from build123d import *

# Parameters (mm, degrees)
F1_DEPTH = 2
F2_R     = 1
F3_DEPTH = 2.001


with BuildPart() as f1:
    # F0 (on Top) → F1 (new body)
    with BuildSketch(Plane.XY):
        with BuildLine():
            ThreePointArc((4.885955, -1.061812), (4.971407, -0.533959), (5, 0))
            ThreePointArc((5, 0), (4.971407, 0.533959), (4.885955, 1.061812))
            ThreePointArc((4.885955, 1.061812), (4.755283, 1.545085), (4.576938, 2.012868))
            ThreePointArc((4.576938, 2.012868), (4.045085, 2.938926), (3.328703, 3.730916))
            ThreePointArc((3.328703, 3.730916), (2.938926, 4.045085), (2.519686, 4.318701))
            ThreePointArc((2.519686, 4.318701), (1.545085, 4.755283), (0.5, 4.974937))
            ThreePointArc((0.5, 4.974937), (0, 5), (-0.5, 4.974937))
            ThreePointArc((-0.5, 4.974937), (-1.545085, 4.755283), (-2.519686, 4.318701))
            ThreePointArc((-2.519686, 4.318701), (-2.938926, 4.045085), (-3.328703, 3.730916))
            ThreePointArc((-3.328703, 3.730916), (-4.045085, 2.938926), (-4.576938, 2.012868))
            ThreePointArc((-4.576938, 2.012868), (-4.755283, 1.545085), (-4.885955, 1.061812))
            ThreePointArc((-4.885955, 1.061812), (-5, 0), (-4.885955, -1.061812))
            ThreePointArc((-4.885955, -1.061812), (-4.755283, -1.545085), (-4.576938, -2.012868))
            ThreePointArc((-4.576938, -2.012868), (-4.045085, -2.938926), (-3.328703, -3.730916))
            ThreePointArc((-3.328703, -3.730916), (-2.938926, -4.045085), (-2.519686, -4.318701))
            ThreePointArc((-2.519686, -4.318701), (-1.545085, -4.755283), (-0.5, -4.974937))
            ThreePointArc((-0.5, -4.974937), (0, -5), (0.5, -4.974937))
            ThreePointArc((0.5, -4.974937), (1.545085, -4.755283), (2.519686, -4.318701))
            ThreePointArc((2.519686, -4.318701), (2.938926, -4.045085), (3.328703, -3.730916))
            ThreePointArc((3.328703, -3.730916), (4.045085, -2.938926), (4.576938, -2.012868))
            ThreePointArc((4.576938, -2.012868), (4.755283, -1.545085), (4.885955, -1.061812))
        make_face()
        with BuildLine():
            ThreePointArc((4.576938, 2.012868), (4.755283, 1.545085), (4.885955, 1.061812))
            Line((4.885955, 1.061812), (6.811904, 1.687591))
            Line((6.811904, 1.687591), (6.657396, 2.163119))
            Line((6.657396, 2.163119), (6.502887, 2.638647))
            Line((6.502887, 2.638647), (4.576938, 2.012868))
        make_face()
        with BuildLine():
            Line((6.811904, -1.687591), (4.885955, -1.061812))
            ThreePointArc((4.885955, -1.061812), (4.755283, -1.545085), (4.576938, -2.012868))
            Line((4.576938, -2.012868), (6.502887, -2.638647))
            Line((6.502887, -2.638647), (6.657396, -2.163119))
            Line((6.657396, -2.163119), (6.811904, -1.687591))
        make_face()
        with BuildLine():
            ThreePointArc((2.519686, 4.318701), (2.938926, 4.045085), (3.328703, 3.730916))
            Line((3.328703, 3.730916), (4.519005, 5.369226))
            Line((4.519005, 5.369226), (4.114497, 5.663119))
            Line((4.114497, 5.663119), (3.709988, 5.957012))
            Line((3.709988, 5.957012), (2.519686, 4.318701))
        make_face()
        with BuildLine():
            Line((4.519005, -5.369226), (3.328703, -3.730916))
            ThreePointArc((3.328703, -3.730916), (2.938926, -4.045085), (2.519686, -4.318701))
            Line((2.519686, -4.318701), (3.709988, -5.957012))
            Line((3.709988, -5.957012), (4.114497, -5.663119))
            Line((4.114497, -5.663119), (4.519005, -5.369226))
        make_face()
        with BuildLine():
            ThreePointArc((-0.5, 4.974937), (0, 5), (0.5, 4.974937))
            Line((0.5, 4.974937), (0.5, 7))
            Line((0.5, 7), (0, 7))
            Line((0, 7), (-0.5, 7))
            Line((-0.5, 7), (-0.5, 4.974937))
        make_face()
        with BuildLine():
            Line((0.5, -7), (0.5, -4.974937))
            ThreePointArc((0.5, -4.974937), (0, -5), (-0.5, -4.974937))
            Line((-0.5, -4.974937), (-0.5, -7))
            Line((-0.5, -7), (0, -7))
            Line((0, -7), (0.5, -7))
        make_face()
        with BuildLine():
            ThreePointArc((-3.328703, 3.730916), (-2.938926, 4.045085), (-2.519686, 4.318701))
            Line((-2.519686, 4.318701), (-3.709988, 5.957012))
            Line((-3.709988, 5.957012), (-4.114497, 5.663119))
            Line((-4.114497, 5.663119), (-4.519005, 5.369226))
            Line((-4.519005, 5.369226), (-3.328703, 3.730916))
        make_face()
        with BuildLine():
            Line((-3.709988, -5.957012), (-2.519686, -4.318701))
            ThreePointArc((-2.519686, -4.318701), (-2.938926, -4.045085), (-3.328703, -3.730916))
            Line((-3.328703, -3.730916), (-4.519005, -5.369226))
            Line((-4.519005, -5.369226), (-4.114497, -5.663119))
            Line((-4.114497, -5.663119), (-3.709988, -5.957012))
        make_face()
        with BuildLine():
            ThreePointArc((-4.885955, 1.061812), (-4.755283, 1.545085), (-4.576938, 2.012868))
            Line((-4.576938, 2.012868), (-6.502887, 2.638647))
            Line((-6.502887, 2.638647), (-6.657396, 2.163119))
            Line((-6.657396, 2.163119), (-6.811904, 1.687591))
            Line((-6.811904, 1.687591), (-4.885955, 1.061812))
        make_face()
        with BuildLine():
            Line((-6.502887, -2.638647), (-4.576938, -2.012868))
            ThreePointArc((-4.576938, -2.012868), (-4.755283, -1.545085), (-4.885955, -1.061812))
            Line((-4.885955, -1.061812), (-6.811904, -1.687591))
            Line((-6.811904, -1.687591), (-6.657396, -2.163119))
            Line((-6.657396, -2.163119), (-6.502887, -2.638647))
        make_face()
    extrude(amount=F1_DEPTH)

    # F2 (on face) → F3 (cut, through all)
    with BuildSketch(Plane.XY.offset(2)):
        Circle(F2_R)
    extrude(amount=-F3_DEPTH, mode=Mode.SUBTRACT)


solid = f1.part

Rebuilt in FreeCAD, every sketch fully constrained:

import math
import FreeCAD as App
import Part
import Sketcher

V = App.Vector
Q = App.Units.Quantity

doc = App.newDocument("Part")
body = doc.addObject("PartDesign::Body", "Body")

sketch1 = body.newObject("Sketcher::SketchObject", "Sketch")
sketch1.AttachmentSupport = (doc.getObject("XY_Plane"), [""])
sketch1.MapMode = "FlatFace"
sketch1.addGeometry(Part.ArcOfCircle(Part.Circle(V(-0.000013, 0.000001, 0), V(0, 0, 1), 5.000013), math.radians(-12.26081), math.radians(-0.00001)), False)
sketch1.addGeometry(Part.ArcOfCircle(Part.Circle(V(-0.000013, -0.000001, 0), V(0, 0, 1), 5.000013), math.radians(0.00001), math.radians(12.26081)), False)
sketch1.addGeometry(Part.LineSegment(V(4.885955, 1.061812, 0), V(6.811904, 1.687591, 0)), False)
sketch1.addGeometry(Part.LineSegment(V(6.811904, 1.687591, 0), V(6.657396, 2.163119, 0)), False)
sketch1.addGeometry(Part.LineSegment(V(6.657396, 2.163119, 0), V(6.502887, 2.638647, 0)), False)
sketch1.addGeometry(Part.LineSegment(V(6.502887, 2.638647, 0), V(4.576938, 2.012868, 0)), False)
sketch1.addGeometry(Part.ArcOfCircle(Part.Circle(V(0.000001, 0, 0), V(0, 0, 1), 4.999999), math.radians(23.739167), math.radians(48.260836)), False)
sketch1.addGeometry(Part.LineSegment(V(3.328703, 3.730916, 0), V(4.519005, 5.369226, 0)), False)
sketch1.addGeometry(Part.LineSegment(V(4.519005, 5.369226, 0), V(4.114497, 5.663119, 0)), False)
sketch1.addGeometry(Part.LineSegment(V(4.114497, 5.663119, 0), V(3.709988, 5.957012, 0)), False)
sketch1.addGeometry(Part.LineSegment(V(3.709988, 5.957012, 0), V(2.519686, 4.318701, 0)), False)
sketch1.addGeometry(Part.ArcOfCircle(Part.Circle(V(0.000009, 0.00003, 0), V(0, 0, 1), 4.999969), math.radians(59.739089), math.radians(84.260899)), False)
sketch1.addGeometry(Part.LineSegment(V(0.5, 4.974937, 0), V(0.5, 7, 0)), False)
sketch1.addGeometry(Part.LineSegment(V(0.5, 7, 0), V(-0.5, 7, 0)), False)
sketch1.addGeometry(Part.LineSegment(V(-0.5, 7, 0), V(-0.5, 4.974937, 0)), False)
sketch1.addGeometry(Part.ArcOfCircle(Part.Circle(V(-0.000009, 0.00003, 0), V(0, 0, 1), 4.999969), math.radians(95.739101), math.radians(120.260911)), False)
sketch1.addGeometry(Part.LineSegment(V(-2.519686, 4.318701, 0), V(-3.709988, 5.957012, 0)), False)
sketch1.addGeometry(Part.LineSegment(V(-3.709988, 5.957012, 0), V(-4.114497, 5.663119, 0)), False)
sketch1.addGeometry(Part.LineSegment(V(-4.114497, 5.663119, 0), V(-4.519005, 5.369226, 0)), False)
sketch1.addGeometry(Part.LineSegment(V(-4.519005, 5.369226, 0), V(-3.328703, 3.730916, 0)), False)
sketch1.addGeometry(Part.ArcOfCircle(Part.Circle(V(-0.000001, 0, 0), V(0, 0, 1), 4.999999), math.radians(131.739164), math.radians(156.260833)), False)
sketch1.addGeometry(Part.LineSegment(V(-4.576938, 2.012868, 0), V(-6.502887, 2.638647, 0)), False)
sketch1.addGeometry(Part.LineSegment(V(-6.502887, 2.638647, 0), V(-6.657396, 2.163119, 0)), False)
sketch1.addGeometry(Part.LineSegment(V(-6.657396, 2.163119, 0), V(-6.811904, 1.687591, 0)), False)
sketch1.addGeometry(Part.LineSegment(V(-6.811904, 1.687591, 0), V(-4.885955, 1.061812, 0)), False)
sketch1.addGeometry(Part.ArcOfCircle(Part.Circle(V(0.000004, 0, 0), V(0, 0, 1), 5.000004), math.radians(167.73918), math.radians(192.26082)), False)
sketch1.addGeometry(Part.LineSegment(V(-4.885955, -1.061812, 0), V(-6.811904, -1.687591, 0)), False)
sketch1.addGeometry(Part.LineSegment(V(-6.811904, -1.687591, 0), V(-6.657396, -2.163119, 0)), False)
sketch1.addGeometry(Part.LineSegment(V(-6.657396, -2.163119, 0), V(-6.502887, -2.638647, 0)), False)
sketch1.addGeometry(Part.LineSegment(V(-6.502887, -2.638647, 0), V(-4.576938, -2.012868, 0)), False)
sketch1.addGeometry(Part.ArcOfCircle(Part.Circle(V(-0.000001, 0, 0), V(0, 0, 1), 4.999999), math.radians(-156.260833), math.radians(-131.739164)), False)
sketch1.addGeometry(Part.LineSegment(V(-3.328703, -3.730916, 0), V(-4.519005, -5.369226, 0)), False)
sketch1.addGeometry(Part.LineSegment(V(-4.519005, -5.369226, 0), V(-4.114497, -5.663119, 0)), False)
sketch1.addGeometry(Part.LineSegment(V(-4.114497, -5.663119, 0), V(-3.709988, -5.957012, 0)), False)
sketch1.addGeometry(Part.LineSegment(V(-3.709988, -5.957012, 0), V(-2.519686, -4.318701, 0)), False)
sketch1.addGeometry(Part.ArcOfCircle(Part.Circle(V(-0.000009, -0.00003, 0), V(0, 0, 1), 4.999969), math.radians(-120.260911), math.radians(-95.739101)), False)
sketch1.addGeometry(Part.LineSegment(V(-0.5, -4.974937, 0), V(-0.5, -7, 0)), False)
sketch1.addGeometry(Part.LineSegment(V(-0.5, -7, 0), V(0.5, -7, 0)), False)
sketch1.addGeometry(Part.LineSegment(V(0.5, -7, 0), V(0.5, -4.974937, 0)), False)
sketch1.addGeometry(Part.ArcOfCircle(Part.Circle(V(0.000009, -0.00003, 0), V(0, 0, 1), 4.999969), math.radians(-84.260899), math.radians(-59.739089)), False)
sketch1.addGeometry(Part.LineSegment(V(2.519686, -4.318701, 0), V(3.709988, -5.957012, 0)), False)
sketch1.addGeometry(Part.LineSegment(V(3.709988, -5.957012, 0), V(4.114497, -5.663119, 0)), False)
sketch1.addGeometry(Part.LineSegment(V(4.114497, -5.663119, 0), V(4.519005, -5.369226, 0)), False)
sketch1.addGeometry(Part.LineSegment(V(4.519005, -5.369226, 0), V(3.328703, -3.730916, 0)), False)
sketch1.addGeometry(Part.ArcOfCircle(Part.Circle(V(0.000001, 0, 0), V(0, 0, 1), 4.999999), math.radians(-48.260836), math.radians(-23.739167)), False)
sketch1.addGeometry(Part.LineSegment(V(4.576938, -2.012868, 0), V(6.502887, -2.638647, 0)), False)
sketch1.addGeometry(Part.LineSegment(V(6.502887, -2.638647, 0), V(6.657396, -2.163119, 0)), False)
sketch1.addGeometry(Part.LineSegment(V(6.657396, -2.163119, 0), V(6.811904, -1.687591, 0)), False)
sketch1.addGeometry(Part.LineSegment(V(6.811904, -1.687591, 0), V(4.885955, -1.061812, 0)), False)
sketch1.addConstraint(Sketcher.Constraint("Tangent", 0, 2, 1, 1))
sketch1.addConstraint(Sketcher.Constraint("Coincident", 1, 2, 2, 1))
sketch1.addConstraint(Sketcher.Constraint("Coincident", 2, 2, 3, 1))
sketch1.addConstraint(Sketcher.Constraint("Coincident", 3, 2, 4, 1))
sketch1.addConstraint(Sketcher.Constraint("Coincident", 4, 2, 5, 1))
sketch1.addConstraint(Sketcher.Constraint("Coincident", 5, 2, 6, 1))
sketch1.addConstraint(Sketcher.Constraint("Coincident", 6, 2, 7, 1))
sketch1.addConstraint(Sketcher.Constraint("Coincident", 7, 2, 8, 1))
sketch1.addConstraint(Sketcher.Constraint("Coincident", 8, 2, 9, 1))
sketch1.addConstraint(Sketcher.Constraint("Coincident", 9, 2, 10, 1))
sketch1.addConstraint(Sketcher.Constraint("Coincident", 10, 2, 11, 1))
sketch1.addConstraint(Sketcher.Constraint("Coincident", 11, 2, 12, 1))
sketch1.addConstraint(Sketcher.Constraint("Coincident", 12, 2, 13, 1))
sketch1.addConstraint(Sketcher.Constraint("Coincident", 13, 2, 14, 1))
sketch1.addConstraint(Sketcher.Constraint("Coincident", 14, 2, 15, 1))
sketch1.addConstraint(Sketcher.Constraint("Coincident", 15, 2, 16, 1))
sketch1.addConstraint(Sketcher.Constraint("Coincident", 16, 2, 17, 1))
sketch1.addConstraint(Sketcher.Constraint("Coincident", 17, 2, 18, 1))
sketch1.addConstraint(Sketcher.Constraint("Coincident", 18, 2, 19, 1))
sketch1.addConstraint(Sketcher.Constraint("Coincident", 19, 2, 20, 1))
sketch1.addConstraint(Sketcher.Constraint("Coincident", 20, 2, 21, 1))
sketch1.addConstraint(Sketcher.Constraint("Coincident", 21, 2, 22, 1))
sketch1.addConstraint(Sketcher.Constraint("Coincident", 22, 2, 23, 1))
sketch1.addConstraint(Sketcher.Constraint("Coincident", 23, 2, 24, 1))
sketch1.addConstraint(Sketcher.Constraint("Coincident", 24, 2, 25, 1))
sketch1.addConstraint(Sketcher.Constraint("Coincident", 25, 2, 26, 1))
sketch1.addConstraint(Sketcher.Constraint("Coincident", 26, 2, 27, 1))
sketch1.addConstraint(Sketcher.Constraint("Coincident", 27, 2, 28, 1))
sketch1.addConstraint(Sketcher.Constraint("Coincident", 28, 2, 29, 1))
sketch1.addConstraint(Sketcher.Constraint("Coincident", 29, 2, 30, 1))
sketch1.addConstraint(Sketcher.Constraint("Coincident", 30, 2, 31, 1))
sketch1.addConstraint(Sketcher.Constraint("Coincident", 31, 2, 32, 1))
sketch1.addConstraint(Sketcher.Constraint("Coincident", 32, 2, 33, 1))
sketch1.addConstraint(Sketcher.Constraint("Coincident", 33, 2, 34, 1))
sketch1.addConstraint(Sketcher.Constraint("Coincident", 34, 2, 35, 1))
sketch1.addConstraint(Sketcher.Constraint("Coincident", 35, 2, 36, 1))
sketch1.addConstraint(Sketcher.Constraint("Coincident", 36, 2, 37, 1))
sketch1.addConstraint(Sketcher.Constraint("Coincident", 37, 2, 38, 1))
sketch1.addConstraint(Sketcher.Constraint("Coincident", 38, 2, 39, 1))
sketch1.addConstraint(Sketcher.Constraint("Coincident", 39, 2, 40, 1))
sketch1.addConstraint(Sketcher.Constraint("Coincident", 40, 2, 41, 1))
sketch1.addConstraint(Sketcher.Constraint("Coincident", 41, 2, 42, 1))
sketch1.addConstraint(Sketcher.Constraint("Coincident", 42, 2, 43, 1))
sketch1.addConstraint(Sketcher.Constraint("Coincident", 43, 2, 44, 1))
sketch1.addConstraint(Sketcher.Constraint("Coincident", 44, 2, 45, 1))
sketch1.addConstraint(Sketcher.Constraint("Coincident", 45, 2, 46, 1))
sketch1.addConstraint(Sketcher.Constraint("Coincident", 46, 2, 47, 1))
sketch1.addConstraint(Sketcher.Constraint("Coincident", 47, 2, 48, 1))
sketch1.addConstraint(Sketcher.Constraint("Coincident", 48, 2, 0, 1))
sketch1.addConstraint(Sketcher.Constraint("Vertical", 12))
sketch1.addConstraint(Sketcher.Constraint("Horizontal", 13))
sketch1.addConstraint(Sketcher.Constraint("Vertical", 14))
sketch1.addConstraint(Sketcher.Constraint("Vertical", 36))
sketch1.addConstraint(Sketcher.Constraint("Horizontal", 37))
sketch1.addConstraint(Sketcher.Constraint("Vertical", 38))
sketch1.addConstraint(Sketcher.Constraint("Coincident", 6, 3, -1, 1))
sketch1.addConstraint(Sketcher.Constraint("Coincident", 20, 3, -1, 1))
sketch1.addConstraint(Sketcher.Constraint("Coincident", 25, 3, -1, 1))
sketch1.addConstraint(Sketcher.Constraint("Coincident", 30, 3, -1, 1))
sketch1.addConstraint(Sketcher.Constraint("Coincident", 44, 3, -1, 1))
sketch1.addConstraint(Sketcher.Constraint("Equal", 0, 1))
sketch1.addConstraint(Sketcher.Constraint("Equal", 11, 15))
sketch1.addConstraint(Sketcher.Constraint("Equal", 6, 20))
sketch1.addConstraint(Sketcher.Constraint("Equal", 20, 30))
sketch1.addConstraint(Sketcher.Constraint("Equal", 15, 35))
sketch1.addConstraint(Sketcher.Constraint("Equal", 35, 39))
sketch1.addConstraint(Sketcher.Constraint("Equal", 30, 44))
sketch1.addConstraint(Sketcher.Constraint("Symmetric", 11, 3, 35, 3, -1, 1))
sketch1.addConstraint(Sketcher.Constraint("Symmetric", 15, 3, 39, 3, -1, 1))
sketch1.addConstraint(Sketcher.Constraint("Symmetric", 1, 2, 25, 2, -1, 1))
sketch1.addConstraint(Sketcher.Constraint("Symmetric", 2, 2, 26, 2, -1, 1))
sketch1.addConstraint(Sketcher.Constraint("Symmetric", 3, 2, 27, 2, -1, 1))
sketch1.addConstraint(Sketcher.Constraint("Symmetric", 4, 2, 28, 2, -1, 1))
sketch1.addConstraint(Sketcher.Constraint("Symmetric", 7, 2, 31, 2, -1, 1))
sketch1.addConstraint(Sketcher.Constraint("Symmetric", 8, 2, 32, 2, -1, 1))
sketch1.addConstraint(Sketcher.Constraint("Symmetric", 9, 2, 33, 2, -1, 1))
sketch1.addConstraint(Sketcher.Constraint("Symmetric", 12, 2, 36, 2, -1, 1))
sketch1.addConstraint(Sketcher.Constraint("Symmetric", 16, 2, 40, 2, -1, 1))
sketch1.addConstraint(Sketcher.Constraint("Symmetric", 17, 2, 41, 2, -1, 1))
sketch1.addConstraint(Sketcher.Constraint("Symmetric", 18, 2, 42, 2, -1, 1))
sketch1.addConstraint(Sketcher.Constraint("Symmetric", 21, 2, 45, 2, -1, 1))
sketch1.addConstraint(Sketcher.Constraint("Symmetric", 22, 2, 46, 2, -1, 1))
sketch1.addConstraint(Sketcher.Constraint("Symmetric", 23, 2, 47, 2, -1, 1))
sketch1.addConstraint(Sketcher.Constraint("Symmetric", 24, 2, 48, 2, -1, 1))
sketch1.addConstraint(Sketcher.Constraint("Symmetric", 11, 3, 15, 3, -2))
sketch1.addConstraint(Sketcher.Constraint("Symmetric", 9, 2, 16, 2, -2))
sketch1.addConstraint(Sketcher.Constraint("Symmetric", 8, 2, 17, 2, -2))
sketch1.addConstraint(Sketcher.Constraint("Symmetric", 7, 2, 18, 2, -2))
sketch1.addConstraint(Sketcher.Constraint("Symmetric", 4, 2, 21, 2, -2))
sketch1.addConstraint(Sketcher.Constraint("Symmetric", 3, 2, 22, 2, -2))
sketch1.addConstraint(Sketcher.Constraint("Symmetric", 2, 2, 23, 2, -2))
sketch1.addConstraint(Sketcher.Constraint("PointOnObject", 0, 2, -1))
sketch1.addConstraint(Sketcher.Constraint("Perpendicular", 2, 3))
sketch1.addConstraint(Sketcher.Constraint("Parallel", 3, 4))
sketch1.addConstraint(Sketcher.Constraint("Perpendicular", 4, 5))
sketch1.addConstraint(Sketcher.Constraint("Perpendicular", 7, 8))
sketch1.addConstraint(Sketcher.Constraint("Parallel", 8, 9))
sketch1.addConstraint(Sketcher.Constraint("Perpendicular", 9, 10))
sketch1.addConstraint(Sketcher.Constraint("Perpendicular", 16, 17))
sketch1.addConstraint(Sketcher.Constraint("Perpendicular", 18, 19))
sketch1.addConstraint(Sketcher.Constraint("Perpendicular", 21, 22))
sketch1.addConstraint(Sketcher.Constraint("Perpendicular", 23, 24))
sketch1.addConstraint(Sketcher.Constraint("Perpendicular", 28, 29))
sketch1.addConstraint(Sketcher.Constraint("Parallel", 10, 31))
sketch1.addConstraint(Sketcher.Constraint("Perpendicular", 33, 34))
sketch1.addConstraint(Sketcher.Constraint("Parallel", 19, 40))
sketch1.addConstraint(Sketcher.Constraint("Perpendicular", 42, 43))
sketch1.addConstraint(Sketcher.Constraint("Parallel", 24, 45))
sketch1.addConstraint(Sketcher.Constraint("Horizontal", 11, 2, 14, 2))
sketch1.addConstraint(Sketcher.Constraint("Horizontal", 35, 2, 38, 2))
sketch1.addConstraint(Sketcher.Constraint("Equal", 3, 4))
sketch1.addConstraint(Sketcher.Constraint("Equal", 2, 5))
sketch1.addConstraint(Sketcher.Constraint("Equal", 5, 7))
sketch1.addConstraint(Sketcher.Constraint("Equal", 4, 8))
sketch1.addConstraint(Sketcher.Constraint("Equal", 8, 9))
sketch1.addConstraint(Sketcher.Constraint("Equal", 7, 10))
sketch1.addConstraint(Sketcher.Constraint("Radius", 6, 4.999999))
sketch1.addConstraint(Sketcher.Constraint("DistanceX", 13, 2, 13, 1, 1.0))
sketch1.addConstraint(Sketcher.Constraint("Angle", 2, Q("18.000006 deg")))
sketch1.addConstraint(Sketcher.Constraint("Angle", 7, Q("53.999997 deg")))
sketch1.addConstraint(Sketcher.Constraint("DistanceX", -1, 1, 0, 2, 5.0))
sketch1.addConstraint(Sketcher.Constraint("DistanceY", -1, 1, 12, 2, 7.0))
sketch1.addConstraint(Sketcher.Constraint("Distance", 3, 0.5))
sketch1.addConstraint(Sketcher.Constraint("DistanceY", 3, 2, 8, 2, 3.5))
sketch1.addConstraint(Sketcher.Constraint("Radius", 11, 4.999969))
sketch1.addConstraint(Sketcher.Constraint("Radius", 0, 5.000013))
sketch1.addConstraint(Sketcher.Constraint("DistanceY", -1, 1, 10, 2, 4.318701))
sketch1.addConstraint(Sketcher.Constraint("DistanceY", 12, 1, 12, 2, 2.025063))
pad1 = body.newObject("PartDesign::Pad", "Pad")
pad1.Profile = sketch1
pad1.Length = 2

sketch2 = body.newObject("Sketcher::SketchObject", "Sketch001")
sketch2.AttachmentSupport = (doc.getObject("XY_Plane"), [""])
sketch2.MapMode = "FlatFace"
sketch2.AttachmentOffset = App.Placement(V(0, 0, 2), App.Rotation())
sketch2.addGeometry(Part.Circle(V(0, 0, 0), V(0, 0, 1), 1), False)
sketch2.addConstraint(Sketcher.Constraint("Coincident", 0, 3, -1, 1))
sketch2.addConstraint(Sketcher.Constraint("Diameter", 0, 2.0))
pocket1 = body.newObject("PartDesign::Pocket", "Pocket")
pocket1.Profile = sketch2
pocket1.Type = "ThroughAll"

doc.recompute()
